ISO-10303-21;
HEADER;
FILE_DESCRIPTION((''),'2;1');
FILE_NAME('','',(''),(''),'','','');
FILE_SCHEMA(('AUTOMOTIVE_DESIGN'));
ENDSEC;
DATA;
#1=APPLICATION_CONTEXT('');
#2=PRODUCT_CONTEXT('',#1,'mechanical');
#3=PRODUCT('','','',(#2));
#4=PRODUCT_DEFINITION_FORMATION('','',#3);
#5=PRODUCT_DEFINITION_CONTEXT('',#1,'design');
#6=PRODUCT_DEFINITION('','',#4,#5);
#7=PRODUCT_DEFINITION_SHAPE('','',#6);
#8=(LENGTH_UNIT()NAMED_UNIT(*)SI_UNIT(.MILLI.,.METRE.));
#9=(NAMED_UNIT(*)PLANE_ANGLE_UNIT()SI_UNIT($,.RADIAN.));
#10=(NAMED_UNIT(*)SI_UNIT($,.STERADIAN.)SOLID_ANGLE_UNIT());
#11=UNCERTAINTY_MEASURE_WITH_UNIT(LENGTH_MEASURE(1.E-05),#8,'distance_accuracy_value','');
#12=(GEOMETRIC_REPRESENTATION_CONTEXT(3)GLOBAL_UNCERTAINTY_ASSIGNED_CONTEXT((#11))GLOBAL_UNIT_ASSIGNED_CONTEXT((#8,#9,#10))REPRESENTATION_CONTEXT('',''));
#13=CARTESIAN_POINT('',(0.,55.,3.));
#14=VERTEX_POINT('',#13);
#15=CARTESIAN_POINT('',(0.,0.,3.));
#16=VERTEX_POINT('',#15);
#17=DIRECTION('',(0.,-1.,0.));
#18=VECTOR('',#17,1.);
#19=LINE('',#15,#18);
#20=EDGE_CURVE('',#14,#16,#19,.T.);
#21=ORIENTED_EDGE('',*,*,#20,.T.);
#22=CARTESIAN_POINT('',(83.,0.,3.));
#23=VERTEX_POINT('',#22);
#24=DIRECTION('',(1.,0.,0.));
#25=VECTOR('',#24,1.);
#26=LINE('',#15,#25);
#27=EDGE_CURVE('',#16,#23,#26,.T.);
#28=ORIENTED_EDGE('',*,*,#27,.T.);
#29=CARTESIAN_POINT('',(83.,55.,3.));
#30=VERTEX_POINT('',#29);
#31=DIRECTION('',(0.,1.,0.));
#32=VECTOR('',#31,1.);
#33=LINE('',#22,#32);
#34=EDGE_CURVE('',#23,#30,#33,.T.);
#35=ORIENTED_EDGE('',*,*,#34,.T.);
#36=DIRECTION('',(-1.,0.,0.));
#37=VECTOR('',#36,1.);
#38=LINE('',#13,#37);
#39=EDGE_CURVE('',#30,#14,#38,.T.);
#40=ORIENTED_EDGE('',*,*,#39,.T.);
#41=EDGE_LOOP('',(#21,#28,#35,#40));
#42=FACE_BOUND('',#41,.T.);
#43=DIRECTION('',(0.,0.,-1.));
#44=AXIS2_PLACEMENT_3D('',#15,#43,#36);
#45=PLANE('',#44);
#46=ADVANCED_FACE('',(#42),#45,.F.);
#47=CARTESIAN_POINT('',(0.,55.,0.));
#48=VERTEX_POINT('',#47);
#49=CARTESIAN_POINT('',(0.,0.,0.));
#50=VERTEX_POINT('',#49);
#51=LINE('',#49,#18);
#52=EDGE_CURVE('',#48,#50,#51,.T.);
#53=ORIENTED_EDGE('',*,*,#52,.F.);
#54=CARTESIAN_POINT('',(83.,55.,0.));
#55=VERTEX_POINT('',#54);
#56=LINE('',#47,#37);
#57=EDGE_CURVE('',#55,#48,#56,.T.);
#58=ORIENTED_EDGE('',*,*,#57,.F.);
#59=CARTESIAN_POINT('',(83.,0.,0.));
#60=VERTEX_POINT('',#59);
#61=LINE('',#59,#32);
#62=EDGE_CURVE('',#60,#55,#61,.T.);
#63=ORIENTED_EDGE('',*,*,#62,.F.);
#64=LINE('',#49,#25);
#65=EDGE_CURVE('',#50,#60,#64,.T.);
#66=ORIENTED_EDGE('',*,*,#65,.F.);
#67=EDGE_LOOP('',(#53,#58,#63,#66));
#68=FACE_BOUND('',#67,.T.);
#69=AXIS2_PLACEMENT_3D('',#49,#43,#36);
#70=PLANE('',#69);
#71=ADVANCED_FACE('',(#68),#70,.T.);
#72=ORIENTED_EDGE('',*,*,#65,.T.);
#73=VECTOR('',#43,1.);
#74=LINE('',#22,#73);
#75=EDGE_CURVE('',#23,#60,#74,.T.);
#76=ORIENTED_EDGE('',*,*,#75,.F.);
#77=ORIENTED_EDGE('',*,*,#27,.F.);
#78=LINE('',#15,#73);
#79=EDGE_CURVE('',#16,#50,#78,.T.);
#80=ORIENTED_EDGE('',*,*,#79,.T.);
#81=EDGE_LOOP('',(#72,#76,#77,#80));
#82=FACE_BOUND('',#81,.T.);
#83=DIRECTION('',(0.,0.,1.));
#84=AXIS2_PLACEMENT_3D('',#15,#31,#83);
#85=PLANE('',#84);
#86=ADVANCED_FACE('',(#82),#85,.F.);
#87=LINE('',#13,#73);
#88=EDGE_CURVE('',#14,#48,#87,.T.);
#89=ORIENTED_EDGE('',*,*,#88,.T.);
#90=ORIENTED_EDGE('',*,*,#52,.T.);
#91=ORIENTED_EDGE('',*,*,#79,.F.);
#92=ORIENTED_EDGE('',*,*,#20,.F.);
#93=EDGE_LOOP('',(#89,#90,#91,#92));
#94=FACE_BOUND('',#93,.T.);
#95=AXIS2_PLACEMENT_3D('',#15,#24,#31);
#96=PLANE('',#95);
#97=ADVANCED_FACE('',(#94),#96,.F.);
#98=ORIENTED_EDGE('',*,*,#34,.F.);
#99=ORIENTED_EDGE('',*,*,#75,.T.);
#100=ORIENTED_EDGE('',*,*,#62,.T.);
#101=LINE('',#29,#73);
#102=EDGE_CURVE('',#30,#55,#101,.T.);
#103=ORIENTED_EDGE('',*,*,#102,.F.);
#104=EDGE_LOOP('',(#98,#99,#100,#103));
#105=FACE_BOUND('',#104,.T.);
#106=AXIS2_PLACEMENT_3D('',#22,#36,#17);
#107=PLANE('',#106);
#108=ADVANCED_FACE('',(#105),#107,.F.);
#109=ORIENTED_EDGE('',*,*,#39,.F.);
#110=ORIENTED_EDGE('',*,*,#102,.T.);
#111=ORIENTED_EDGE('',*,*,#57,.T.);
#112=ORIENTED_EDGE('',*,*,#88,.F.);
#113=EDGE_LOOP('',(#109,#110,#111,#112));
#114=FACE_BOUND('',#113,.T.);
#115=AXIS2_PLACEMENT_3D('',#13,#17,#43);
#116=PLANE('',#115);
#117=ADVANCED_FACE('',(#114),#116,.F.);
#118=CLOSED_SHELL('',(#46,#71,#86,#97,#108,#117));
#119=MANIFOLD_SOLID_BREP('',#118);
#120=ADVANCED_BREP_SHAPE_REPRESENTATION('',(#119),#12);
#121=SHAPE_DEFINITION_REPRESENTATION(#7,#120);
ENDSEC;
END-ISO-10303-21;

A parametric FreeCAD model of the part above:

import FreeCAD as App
import Part
import Sketcher
from FreeCAD import Vector
Q = App.Units.Quantity

doc = App.newDocument("Part")
body = doc.addObject("PartDesign::Body", "Body")

# Sketch on XY plane
sketch1 = doc.addObject("Sketcher::SketchObject", "Sketch")
body.addObject(sketch1)
sketch1.AttachmentSupport = (doc.XY_Plane, [""])
sketch1.MapMode = "FlatFace"
sketch1.addGeometry(Part.LineSegment(Vector(0, 55, 0), Vector(0, 0, 0)), False)
sketch1.addGeometry(Part.LineSegment(Vector(0, 0, 0), Vector(83, 0, 0)), False)
sketch1.addGeometry(Part.LineSegment(Vector(83, 0, 0), Vector(83, 55, 0)), False)
sketch1.addGeometry(Part.LineSegment(Vector(83, 55, 0), Vector(0, 55, 0)), False)
sketch1.addConstraint(Sketcher.Constraint("Coincident", 0, 2, 1, 1))
sketch1.addConstraint(Sketcher.Constraint("Coincident", 1, 2, 2, 1))
sketch1.addConstraint(Sketcher.Constraint("Coincident", 2, 2, 3, 1))
sketch1.addConstraint(Sketcher.Constraint("Coincident", 3, 2, 0, 1))
sketch1.addConstraint(Sketcher.Constraint("Vertical", 0))
sketch1.addConstraint(Sketcher.Constraint("Horizontal", 1))
sketch1.addConstraint(Sketcher.Constraint("Vertical", 2))
sketch1.addConstraint(Sketcher.Constraint("Horizontal", 3))
sketch1.addConstraint(Sketcher.Constraint("Coincident", 0, 2, -1, 1))
sketch1.addConstraint(Sketcher.Constraint("DistanceX", 1, 1, 1, 2, Q("83 mm")))
sketch1.addConstraint(Sketcher.Constraint("DistanceY", 0, 2, 0, 1, Q("55 mm")))
pad1 = doc.addObject("PartDesign::Pad", "Pad")
body.addObject(pad1)
pad1.Profile = sketch1
pad1.Length = 3

doc.recompute()
